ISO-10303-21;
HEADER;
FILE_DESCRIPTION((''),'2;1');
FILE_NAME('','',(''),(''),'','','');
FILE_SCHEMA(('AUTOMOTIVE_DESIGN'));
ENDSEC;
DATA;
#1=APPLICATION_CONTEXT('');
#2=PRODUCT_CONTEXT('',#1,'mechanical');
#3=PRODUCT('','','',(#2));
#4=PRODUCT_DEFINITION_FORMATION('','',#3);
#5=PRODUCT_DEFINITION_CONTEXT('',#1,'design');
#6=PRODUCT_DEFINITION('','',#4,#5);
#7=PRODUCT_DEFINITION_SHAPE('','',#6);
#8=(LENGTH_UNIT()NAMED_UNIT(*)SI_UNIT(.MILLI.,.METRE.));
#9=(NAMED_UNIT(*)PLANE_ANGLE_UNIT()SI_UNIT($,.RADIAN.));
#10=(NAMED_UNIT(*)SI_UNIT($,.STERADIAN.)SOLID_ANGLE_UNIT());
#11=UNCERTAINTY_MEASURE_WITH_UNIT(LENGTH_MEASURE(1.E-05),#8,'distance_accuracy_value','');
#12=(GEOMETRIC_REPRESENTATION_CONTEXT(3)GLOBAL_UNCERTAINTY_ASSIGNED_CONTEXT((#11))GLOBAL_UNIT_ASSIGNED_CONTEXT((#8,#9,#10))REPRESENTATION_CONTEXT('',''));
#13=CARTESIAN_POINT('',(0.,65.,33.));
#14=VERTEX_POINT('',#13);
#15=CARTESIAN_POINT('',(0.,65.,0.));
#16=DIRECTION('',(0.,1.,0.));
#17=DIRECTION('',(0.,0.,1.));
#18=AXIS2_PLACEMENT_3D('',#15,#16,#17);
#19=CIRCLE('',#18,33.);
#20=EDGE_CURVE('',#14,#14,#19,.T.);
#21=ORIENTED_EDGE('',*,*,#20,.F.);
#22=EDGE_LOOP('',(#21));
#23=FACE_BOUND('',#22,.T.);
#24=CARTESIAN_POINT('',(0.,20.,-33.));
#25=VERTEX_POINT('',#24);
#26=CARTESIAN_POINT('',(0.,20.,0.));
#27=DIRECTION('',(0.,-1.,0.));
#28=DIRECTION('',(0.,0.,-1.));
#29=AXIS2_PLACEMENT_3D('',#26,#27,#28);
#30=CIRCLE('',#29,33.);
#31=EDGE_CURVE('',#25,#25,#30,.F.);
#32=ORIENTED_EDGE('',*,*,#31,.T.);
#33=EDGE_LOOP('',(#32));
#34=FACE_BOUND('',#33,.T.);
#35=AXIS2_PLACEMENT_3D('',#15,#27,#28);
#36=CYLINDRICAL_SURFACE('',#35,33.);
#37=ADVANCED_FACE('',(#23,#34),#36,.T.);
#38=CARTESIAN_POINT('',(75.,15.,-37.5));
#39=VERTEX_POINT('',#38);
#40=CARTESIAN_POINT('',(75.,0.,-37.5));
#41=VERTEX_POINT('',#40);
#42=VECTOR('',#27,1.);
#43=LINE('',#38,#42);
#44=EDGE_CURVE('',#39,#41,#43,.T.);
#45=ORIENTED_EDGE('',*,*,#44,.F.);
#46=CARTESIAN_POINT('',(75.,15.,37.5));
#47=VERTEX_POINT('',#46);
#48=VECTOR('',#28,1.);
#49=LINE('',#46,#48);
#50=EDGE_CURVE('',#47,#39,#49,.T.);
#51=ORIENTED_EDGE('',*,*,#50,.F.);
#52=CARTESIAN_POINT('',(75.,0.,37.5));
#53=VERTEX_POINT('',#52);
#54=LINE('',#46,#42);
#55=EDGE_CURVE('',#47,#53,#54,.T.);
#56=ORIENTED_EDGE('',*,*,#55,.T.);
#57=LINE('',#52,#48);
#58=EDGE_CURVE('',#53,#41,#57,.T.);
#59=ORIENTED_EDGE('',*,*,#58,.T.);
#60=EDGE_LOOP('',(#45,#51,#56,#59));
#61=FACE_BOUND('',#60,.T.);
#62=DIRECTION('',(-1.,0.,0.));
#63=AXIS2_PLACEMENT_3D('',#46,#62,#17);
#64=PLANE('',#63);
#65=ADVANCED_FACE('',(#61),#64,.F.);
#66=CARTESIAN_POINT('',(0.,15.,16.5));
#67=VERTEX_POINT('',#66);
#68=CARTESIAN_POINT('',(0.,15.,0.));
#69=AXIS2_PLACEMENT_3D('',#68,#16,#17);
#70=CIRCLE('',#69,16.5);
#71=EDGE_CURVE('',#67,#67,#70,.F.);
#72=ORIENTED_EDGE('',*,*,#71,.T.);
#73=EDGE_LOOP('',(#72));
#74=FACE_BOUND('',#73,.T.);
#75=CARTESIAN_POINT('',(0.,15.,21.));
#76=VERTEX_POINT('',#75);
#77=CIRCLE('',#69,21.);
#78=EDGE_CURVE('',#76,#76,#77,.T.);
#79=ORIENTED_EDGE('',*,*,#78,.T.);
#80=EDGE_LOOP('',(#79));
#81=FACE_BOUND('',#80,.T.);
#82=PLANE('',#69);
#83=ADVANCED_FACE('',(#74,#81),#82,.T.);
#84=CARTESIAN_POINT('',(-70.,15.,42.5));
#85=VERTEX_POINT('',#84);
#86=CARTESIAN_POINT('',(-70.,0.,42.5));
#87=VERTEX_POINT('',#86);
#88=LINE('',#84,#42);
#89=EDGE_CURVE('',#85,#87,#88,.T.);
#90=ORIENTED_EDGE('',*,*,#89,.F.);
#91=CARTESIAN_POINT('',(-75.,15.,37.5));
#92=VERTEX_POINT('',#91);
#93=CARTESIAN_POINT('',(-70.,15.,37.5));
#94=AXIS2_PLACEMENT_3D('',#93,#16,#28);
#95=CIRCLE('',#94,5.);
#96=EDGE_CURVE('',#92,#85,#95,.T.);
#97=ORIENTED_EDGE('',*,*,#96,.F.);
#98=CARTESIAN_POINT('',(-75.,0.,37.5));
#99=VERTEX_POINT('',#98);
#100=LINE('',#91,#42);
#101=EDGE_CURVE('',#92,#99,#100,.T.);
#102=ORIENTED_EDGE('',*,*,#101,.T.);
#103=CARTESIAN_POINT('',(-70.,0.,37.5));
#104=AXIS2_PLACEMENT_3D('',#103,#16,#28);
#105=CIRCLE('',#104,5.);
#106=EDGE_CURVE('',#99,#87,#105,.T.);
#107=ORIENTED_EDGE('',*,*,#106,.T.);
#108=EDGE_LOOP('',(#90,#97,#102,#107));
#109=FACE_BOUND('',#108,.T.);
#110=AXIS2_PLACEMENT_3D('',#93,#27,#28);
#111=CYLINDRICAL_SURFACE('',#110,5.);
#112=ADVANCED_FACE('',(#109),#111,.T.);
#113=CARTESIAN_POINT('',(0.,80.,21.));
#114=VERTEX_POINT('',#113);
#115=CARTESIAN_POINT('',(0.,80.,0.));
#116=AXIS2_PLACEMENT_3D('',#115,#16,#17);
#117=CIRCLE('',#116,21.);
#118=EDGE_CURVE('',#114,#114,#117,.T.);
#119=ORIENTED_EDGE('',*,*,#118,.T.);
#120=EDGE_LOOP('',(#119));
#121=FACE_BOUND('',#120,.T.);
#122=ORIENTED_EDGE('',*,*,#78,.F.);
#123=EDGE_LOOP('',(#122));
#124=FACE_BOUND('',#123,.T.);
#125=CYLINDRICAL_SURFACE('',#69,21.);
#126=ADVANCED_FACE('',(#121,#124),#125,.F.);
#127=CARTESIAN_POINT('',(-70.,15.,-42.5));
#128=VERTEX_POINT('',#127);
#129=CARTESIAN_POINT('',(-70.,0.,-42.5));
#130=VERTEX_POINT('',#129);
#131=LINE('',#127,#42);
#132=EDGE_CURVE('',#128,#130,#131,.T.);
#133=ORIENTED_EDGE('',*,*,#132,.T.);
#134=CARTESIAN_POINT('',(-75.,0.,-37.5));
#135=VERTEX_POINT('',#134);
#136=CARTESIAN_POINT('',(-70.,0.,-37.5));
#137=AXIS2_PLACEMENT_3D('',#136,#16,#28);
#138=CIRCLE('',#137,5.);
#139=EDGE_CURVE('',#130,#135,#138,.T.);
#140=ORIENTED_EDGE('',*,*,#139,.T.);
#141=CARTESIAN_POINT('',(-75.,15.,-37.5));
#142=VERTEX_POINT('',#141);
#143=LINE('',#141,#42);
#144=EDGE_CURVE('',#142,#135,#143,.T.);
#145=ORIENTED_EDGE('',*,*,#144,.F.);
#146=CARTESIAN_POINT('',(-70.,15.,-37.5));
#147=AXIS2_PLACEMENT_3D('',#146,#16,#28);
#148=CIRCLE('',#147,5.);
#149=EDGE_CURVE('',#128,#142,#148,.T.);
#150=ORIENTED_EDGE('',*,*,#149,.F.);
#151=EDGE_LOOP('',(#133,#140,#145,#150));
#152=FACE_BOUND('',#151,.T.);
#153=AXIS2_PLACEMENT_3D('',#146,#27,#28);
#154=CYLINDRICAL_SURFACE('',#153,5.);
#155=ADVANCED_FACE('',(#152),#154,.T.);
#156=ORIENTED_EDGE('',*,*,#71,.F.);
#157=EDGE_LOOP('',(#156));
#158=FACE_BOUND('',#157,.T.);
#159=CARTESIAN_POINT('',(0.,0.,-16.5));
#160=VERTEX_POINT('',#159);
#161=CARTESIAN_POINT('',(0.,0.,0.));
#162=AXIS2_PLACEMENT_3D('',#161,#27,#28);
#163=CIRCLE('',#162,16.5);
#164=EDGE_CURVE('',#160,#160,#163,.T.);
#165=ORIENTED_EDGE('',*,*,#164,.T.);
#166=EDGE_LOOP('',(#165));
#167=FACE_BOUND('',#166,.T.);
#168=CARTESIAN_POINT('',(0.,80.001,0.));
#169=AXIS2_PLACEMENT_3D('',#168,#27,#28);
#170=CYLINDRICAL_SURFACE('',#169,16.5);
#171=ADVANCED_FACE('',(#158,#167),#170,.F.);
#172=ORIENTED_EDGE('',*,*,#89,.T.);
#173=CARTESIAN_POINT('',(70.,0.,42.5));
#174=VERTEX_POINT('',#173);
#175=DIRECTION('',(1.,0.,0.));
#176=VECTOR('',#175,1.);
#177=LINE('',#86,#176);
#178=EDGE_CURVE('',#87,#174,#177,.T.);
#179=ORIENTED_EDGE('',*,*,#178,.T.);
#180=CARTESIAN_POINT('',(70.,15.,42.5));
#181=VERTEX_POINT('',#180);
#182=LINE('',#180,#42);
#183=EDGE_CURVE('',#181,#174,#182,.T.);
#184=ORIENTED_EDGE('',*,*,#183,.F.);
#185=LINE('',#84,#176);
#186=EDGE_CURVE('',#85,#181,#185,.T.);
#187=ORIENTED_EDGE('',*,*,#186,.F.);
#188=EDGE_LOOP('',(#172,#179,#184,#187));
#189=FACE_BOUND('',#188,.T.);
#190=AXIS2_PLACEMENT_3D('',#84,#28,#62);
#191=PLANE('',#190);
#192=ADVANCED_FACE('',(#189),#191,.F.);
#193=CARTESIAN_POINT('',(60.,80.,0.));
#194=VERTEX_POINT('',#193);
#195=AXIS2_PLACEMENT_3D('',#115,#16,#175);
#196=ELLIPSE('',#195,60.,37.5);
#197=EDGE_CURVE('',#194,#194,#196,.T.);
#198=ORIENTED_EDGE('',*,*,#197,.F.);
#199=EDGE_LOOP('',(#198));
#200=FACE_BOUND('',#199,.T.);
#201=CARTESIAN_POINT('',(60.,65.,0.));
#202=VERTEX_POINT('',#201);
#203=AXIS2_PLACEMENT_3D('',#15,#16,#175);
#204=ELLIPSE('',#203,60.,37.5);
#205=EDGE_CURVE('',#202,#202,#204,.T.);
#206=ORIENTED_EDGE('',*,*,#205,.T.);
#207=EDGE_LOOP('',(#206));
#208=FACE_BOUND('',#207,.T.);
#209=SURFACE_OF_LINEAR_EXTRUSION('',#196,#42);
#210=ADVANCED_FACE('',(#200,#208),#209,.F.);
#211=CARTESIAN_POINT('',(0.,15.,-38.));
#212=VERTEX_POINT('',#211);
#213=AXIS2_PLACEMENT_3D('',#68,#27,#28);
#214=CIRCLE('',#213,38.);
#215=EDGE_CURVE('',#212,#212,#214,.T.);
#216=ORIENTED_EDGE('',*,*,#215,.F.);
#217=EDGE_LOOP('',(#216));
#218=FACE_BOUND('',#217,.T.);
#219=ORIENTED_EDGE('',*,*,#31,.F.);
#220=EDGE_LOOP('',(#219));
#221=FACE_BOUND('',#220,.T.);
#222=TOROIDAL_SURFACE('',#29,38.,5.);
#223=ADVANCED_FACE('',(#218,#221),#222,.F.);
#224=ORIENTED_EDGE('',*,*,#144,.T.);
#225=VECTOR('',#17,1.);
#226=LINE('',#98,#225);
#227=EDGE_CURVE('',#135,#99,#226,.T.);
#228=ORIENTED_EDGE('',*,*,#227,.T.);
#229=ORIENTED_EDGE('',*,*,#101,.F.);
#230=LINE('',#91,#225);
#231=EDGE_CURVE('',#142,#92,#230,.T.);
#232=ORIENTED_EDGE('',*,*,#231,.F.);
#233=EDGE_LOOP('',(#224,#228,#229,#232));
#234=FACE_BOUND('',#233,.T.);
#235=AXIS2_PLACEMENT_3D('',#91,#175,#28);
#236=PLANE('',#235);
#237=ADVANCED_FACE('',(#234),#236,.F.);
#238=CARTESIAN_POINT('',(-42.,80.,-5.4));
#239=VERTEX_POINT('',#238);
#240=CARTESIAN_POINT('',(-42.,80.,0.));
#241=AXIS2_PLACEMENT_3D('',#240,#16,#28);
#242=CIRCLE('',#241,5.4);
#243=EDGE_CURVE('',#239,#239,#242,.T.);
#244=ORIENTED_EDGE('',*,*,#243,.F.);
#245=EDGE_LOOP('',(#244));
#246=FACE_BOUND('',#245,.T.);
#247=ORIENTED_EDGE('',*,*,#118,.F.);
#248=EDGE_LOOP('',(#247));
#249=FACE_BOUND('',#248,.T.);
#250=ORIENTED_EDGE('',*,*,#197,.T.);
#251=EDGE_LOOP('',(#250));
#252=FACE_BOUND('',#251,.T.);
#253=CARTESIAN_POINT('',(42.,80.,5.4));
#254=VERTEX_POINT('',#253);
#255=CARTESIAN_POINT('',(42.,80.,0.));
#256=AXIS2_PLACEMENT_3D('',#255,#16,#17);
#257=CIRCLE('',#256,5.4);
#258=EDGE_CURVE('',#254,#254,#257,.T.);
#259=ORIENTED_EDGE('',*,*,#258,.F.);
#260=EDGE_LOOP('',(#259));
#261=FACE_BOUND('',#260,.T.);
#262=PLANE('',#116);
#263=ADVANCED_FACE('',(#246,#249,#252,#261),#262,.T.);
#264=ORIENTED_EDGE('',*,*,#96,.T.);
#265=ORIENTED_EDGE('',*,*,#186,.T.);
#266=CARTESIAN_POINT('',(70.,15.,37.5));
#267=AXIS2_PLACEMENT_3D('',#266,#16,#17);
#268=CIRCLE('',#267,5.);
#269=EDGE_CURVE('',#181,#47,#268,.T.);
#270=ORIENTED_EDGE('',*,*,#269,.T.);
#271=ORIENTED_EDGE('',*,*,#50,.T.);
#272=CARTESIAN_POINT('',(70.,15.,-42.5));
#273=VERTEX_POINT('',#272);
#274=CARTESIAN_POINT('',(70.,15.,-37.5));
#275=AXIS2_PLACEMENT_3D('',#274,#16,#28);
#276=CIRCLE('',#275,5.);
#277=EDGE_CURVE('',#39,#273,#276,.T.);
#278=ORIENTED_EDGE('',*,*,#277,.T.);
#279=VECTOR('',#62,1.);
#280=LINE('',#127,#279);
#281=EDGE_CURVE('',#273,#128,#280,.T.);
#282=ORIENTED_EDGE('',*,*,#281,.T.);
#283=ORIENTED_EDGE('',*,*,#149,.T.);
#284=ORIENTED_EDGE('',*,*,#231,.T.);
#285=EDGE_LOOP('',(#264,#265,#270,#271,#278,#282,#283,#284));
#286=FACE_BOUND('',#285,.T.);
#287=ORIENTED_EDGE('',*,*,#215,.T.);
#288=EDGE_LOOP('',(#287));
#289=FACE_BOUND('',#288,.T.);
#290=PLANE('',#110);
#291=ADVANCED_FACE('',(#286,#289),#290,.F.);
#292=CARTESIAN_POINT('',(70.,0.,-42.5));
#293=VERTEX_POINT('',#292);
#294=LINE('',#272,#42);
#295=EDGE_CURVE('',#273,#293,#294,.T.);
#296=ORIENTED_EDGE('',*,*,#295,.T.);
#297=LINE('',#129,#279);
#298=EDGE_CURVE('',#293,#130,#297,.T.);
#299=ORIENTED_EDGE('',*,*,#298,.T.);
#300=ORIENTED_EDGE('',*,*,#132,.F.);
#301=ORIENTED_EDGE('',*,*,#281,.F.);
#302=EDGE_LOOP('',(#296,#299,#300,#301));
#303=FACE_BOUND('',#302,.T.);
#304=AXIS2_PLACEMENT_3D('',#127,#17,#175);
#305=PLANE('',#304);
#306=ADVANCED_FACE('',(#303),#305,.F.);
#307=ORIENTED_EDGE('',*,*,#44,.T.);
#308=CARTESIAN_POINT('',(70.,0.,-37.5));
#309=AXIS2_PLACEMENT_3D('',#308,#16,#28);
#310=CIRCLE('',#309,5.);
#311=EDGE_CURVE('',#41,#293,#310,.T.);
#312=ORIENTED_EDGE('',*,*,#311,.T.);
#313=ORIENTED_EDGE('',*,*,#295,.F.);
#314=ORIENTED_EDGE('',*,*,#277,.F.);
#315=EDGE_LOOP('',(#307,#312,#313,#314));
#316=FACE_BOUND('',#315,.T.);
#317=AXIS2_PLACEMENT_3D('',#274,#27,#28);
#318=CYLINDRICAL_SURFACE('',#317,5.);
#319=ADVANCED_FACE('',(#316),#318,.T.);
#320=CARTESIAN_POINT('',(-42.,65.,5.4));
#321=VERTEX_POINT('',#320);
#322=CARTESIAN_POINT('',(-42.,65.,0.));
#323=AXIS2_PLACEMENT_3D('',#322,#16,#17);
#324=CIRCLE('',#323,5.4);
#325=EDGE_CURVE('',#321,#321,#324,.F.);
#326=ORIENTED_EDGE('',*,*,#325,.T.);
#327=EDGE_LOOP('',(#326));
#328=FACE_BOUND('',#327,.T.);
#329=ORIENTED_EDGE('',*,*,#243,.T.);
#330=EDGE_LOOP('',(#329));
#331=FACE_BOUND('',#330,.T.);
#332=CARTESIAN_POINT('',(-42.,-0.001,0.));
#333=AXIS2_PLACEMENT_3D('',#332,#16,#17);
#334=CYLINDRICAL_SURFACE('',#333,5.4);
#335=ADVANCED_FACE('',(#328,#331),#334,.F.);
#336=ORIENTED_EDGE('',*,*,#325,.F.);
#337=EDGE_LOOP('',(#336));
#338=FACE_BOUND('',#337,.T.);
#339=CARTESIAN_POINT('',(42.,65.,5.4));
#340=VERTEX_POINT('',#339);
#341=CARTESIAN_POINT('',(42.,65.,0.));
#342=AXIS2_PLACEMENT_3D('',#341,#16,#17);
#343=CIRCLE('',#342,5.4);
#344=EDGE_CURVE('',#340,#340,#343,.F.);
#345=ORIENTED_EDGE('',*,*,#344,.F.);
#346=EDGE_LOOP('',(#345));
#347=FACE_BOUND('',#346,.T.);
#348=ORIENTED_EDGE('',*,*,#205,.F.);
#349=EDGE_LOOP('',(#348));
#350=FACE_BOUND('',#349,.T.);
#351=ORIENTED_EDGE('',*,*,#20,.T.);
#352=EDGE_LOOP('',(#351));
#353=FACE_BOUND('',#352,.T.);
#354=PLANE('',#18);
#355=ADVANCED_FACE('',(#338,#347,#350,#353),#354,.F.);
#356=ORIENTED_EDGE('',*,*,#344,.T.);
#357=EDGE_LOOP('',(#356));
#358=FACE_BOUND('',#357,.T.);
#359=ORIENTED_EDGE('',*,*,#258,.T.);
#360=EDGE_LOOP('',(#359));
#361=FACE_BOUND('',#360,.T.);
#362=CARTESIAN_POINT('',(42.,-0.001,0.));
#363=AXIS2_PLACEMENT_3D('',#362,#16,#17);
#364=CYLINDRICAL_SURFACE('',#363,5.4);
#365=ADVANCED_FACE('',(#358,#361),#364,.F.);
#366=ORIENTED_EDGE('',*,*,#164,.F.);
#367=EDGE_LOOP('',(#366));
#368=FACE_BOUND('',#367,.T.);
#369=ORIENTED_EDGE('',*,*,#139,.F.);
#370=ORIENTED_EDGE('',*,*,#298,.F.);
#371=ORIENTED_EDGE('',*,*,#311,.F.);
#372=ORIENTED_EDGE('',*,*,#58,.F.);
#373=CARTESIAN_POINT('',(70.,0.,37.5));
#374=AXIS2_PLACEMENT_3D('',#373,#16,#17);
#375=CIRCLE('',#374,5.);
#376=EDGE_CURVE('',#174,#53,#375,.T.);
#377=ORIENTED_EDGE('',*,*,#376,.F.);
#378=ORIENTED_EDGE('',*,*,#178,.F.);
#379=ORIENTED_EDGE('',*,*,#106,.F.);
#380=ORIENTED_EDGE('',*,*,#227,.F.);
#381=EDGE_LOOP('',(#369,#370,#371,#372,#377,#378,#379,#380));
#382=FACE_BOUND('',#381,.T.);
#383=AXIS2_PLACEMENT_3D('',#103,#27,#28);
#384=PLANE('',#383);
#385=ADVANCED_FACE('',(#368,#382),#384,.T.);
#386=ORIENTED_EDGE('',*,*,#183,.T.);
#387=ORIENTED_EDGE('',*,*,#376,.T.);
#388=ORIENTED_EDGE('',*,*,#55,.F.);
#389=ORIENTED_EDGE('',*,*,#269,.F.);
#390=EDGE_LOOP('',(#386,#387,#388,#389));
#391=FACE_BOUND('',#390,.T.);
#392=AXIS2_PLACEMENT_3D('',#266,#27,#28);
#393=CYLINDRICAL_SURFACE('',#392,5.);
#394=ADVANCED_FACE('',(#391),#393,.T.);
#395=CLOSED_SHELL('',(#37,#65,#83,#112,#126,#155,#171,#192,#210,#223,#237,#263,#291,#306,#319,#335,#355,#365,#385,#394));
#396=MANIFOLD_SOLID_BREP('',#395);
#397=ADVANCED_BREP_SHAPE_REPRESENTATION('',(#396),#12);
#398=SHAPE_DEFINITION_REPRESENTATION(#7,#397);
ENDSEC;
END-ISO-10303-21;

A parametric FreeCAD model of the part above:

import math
import FreeCAD as App
import Part
import Sketcher
from FreeCAD import Vector
Q = App.Units.Quantity


def edges_at(feature, points):
    """Names of the edges that pass closest to the given points."""
    edges = feature.Shape.Edges
    near = lambda p: min(range(len(edges)), key=lambda i: edges[i].distToShape(Part.Vertex(*p))[0])
    return sorted({f"Edge{near(p) + 1}" for p in points})

doc = App.newDocument("Part")
body = doc.addObject("PartDesign::Body", "Body")

# Sketch on XZ plane
sketch1 = body.newObject("Sketcher::SketchObject", "Sketch")
sketch1.AttachmentSupport = (doc.getObject("XZ_Plane"), [""])
sketch1.MapMode = "FlatFace"
sketch1.addGeometry([
    Part.LineSegment(Vector(-70, 42, 0), Vector(70, 42, 0)),  # 0
    Part.ArcOfCircle(Part.Circle(Vector(70, 38, 0), Vector(0, 0, 1), 5), math.radians(0), math.radians(90)),  # 1
    Part.LineSegment(Vector(75, 38, 0), Vector(75, -38, 0)),  # 2
    Part.ArcOfCircle(Part.Circle(Vector(70, -38, 0), Vector(0, 0, 1), 5), math.radians(-90), math.radians(0)),  # 3
    Part.LineSegment(Vector(70, -42, 0), Vector(-70, -42, 0)),  # 4
    Part.ArcOfCircle(Part.Circle(Vector(-70, -38, 0), Vector(0, 0, 1), 5), math.radians(180), math.radians(270)),  # 5
    Part.LineSegment(Vector(-75, -38, 0), Vector(-75, 38, 0)),  # 6
    Part.ArcOfCircle(Part.Circle(Vector(-70, 38, 0), Vector(0, 0, 1), 5), math.radians(90), math.radians(180)),  # 7
], False)
sketch1.addConstraint([
    Sketcher.Constraint("Tangent", 0, 2, 1, 2),
    Sketcher.Constraint("Tangent", 1, 1, 2, 1),
    Sketcher.Constraint("Tangent", 2, 2, 3, 2),
    Sketcher.Constraint("Tangent", 3, 1, 4, 1),
    Sketcher.Constraint("Tangent", 4, 2, 5, 2),
    Sketcher.Constraint("Tangent", 5, 1, 6, 1),
    Sketcher.Constraint("Tangent", 6, 2, 7, 2),
    Sketcher.Constraint("Tangent", 7, 1, 0, 1),
    Sketcher.Constraint("Horizontal", 0),
    Sketcher.Constraint("Vertical", 2),
    Sketcher.Constraint("Horizontal", 4),
    Sketcher.Constraint("Vertical", 6),
    Sketcher.Constraint("Equal", 1, 3),
    Sketcher.Constraint("Equal", 3, 5),
    Sketcher.Constraint("Equal", 5, 7),
    Sketcher.Constraint("Symmetric", 1, 3, 5, 3, -1, 1),
    Sketcher.Constraint("Radius", 1, Q("5 mm")),
    Sketcher.Constraint("DistanceX", 0, 1, 0, 2, Q("140 mm")),
    Sketcher.Constraint("DistanceY", 2, 2, 2, 1, Q("75 mm")),
])
pad1 = body.newObject("PartDesign::Pad", "Pad")
pad1.Profile = sketch1
pad1.Length = 15
pad1.Reversed = True

# Sketch on XZ plane
sketch2 = body.newObject("Sketcher::SketchObject", "Sketch001")
sketch2.AttachmentSupport = (doc.getObject("XZ_Plane"), [""])
sketch2.MapMode = "FlatFace"
sketch2.AttachmentOffset = App.Placement(Vector(0, 0, -15), App.Rotation())
sketch2.addGeometry(Part.Circle(Vector(0, 0, 0), Vector(0, 0, 1), 33), False)
sketch2.addConstraint([
    Sketcher.Constraint("Coincident", 0, 3, -1, 1),
    Sketcher.Constraint("Diameter", 0, Q("66 mm")),
])
pad2 = body.newObject("PartDesign::Pad", "Pad001")
pad2.Profile = sketch2
pad2.Length = 50
pad2.Reversed = True

# Sketch on XZ plane
sketch3 = body.newObject("Sketcher::SketchObject", "Sketch002")
sketch3.AttachmentSupport = (doc.getObject("XZ_Plane"), [""])
sketch3.MapMode = "FlatFace"
sketch3.AttachmentOffset = App.Placement(Vector(0, 0, -65), App.Rotation())
sketch3.addGeometry(Part.Ellipse(Vector(60, 0, 0), Vector(0, 37.5, 0), Vector(0, 0, 0)), False)
sketch3.addConstraint(Sketcher.Constraint("Block", 0))
pad3 = body.newObject("PartDesign::Pad", "Pad002")
pad3.Profile = sketch3
pad3.Length = 15
pad3.Reversed = True

# Sketch on XZ plane
sketch4 = body.newObject("Sketcher::SketchObject", "Sketch003")
sketch4.AttachmentSupport = (doc.getObject("XZ_Plane"), [""])
sketch4.MapMode = "FlatFace"
sketch4.AttachmentOffset = App.Placement(Vector(0, 0, -80), App.Rotation())
sketch4.addGeometry(Part.Circle(Vector(0, 0, 0), Vector(0, 0, 1), 21), False)
sketch4.addConstraint([
    Sketcher.Constraint("Coincident", 0, 3, -1, 1),
    Sketcher.Constraint("Diameter", 0, Q("42 mm")),
])
pocket1 = body.newObject("PartDesign::Pocket", "Pocket")
pocket1.Profile = sketch4
pocket1.Length = 65
pocket1.Reversed = True

# Sketch on XZ plane
sketch5 = body.newObject("Sketcher::SketchObject", "Sketch004")
sketch5.AttachmentSupport = (doc.getObject("XZ_Plane"), [""])
sketch5.MapMode = "FlatFace"
sketch5.addGeometry(Part.Circle(Vector(0, 0, 0), Vector(0, 0, 1), 16), False)
sketch5.addConstraint([
    Sketcher.Constraint("Coincident", 0, 3, -1, 1),
    Sketcher.Constraint("Diameter", 0, Q("33 mm")),
])
pocket2 = body.newObject("PartDesign::Pocket", "Pocket001")
pocket2.Profile = sketch5
pocket2.Type = "UpToFirst"

# Sketch on XZ plane
sketch6 = body.newObject("Sketcher::SketchObject", "Sketch005")
sketch6.AttachmentSupport = (doc.getObject("XZ_Plane"), [""])
sketch6.MapMode = "FlatFace"
sketch6.AttachmentOffset = App.Placement(Vector(0, 0, -80), App.Rotation())
sketch6.addGeometry(Part.Circle(Vector(42, 0, 0), Vector(0, 0, 1), 5), False)
sketch6.addConstraint([
    Sketcher.Constraint("PointOnObject", 0, 3, -1),
    Sketcher.Constraint("Diameter", 0, Q("10.8 mm")),
    Sketcher.Constraint("DistanceX", -1, 1, 0, 3, Q("42 mm")),
])
pocket3 = body.newObject("PartDesign::Pocket", "Pocket002")
pocket3.Profile = sketch6
pocket3.Type = "UpToFirst"
pocket3.Reversed = True

# Sketch on XZ plane
sketch7 = body.newObject("Sketcher::SketchObject", "Sketch006")
sketch7.AttachmentSupport = (doc.getObject("XZ_Plane"), [""])
sketch7.MapMode = "FlatFace"
sketch7.AttachmentOffset = App.Placement(Vector(0, 0, -80), App.Rotation())
sketch7.addGeometry(Part.Circle(Vector(-42, 0, 0), Vector(0, 0, 1), 5), False)
sketch7.addConstraint([
    Sketcher.Constraint("PointOnObject", 0, 3, -1),
    Sketcher.Constraint("Diameter", 0, Q("10.8 mm")),
    Sketcher.Constraint("DistanceX", 0, 3, -1, 1, Q("42 mm")),
])
pocket4 = body.newObject("PartDesign::Pocket", "Pocket003")
pocket4.Profile = sketch7
pocket4.Type = "UpToFirst"
pocket4.Reversed = True
doc.recompute()

fillet = body.newObject("PartDesign::Fillet", "Fillet")
fillet.Base = (pocket4, edges_at(pocket4, [(0, 15, 33)]))
fillet.Radius = 5

doc.recompute()
